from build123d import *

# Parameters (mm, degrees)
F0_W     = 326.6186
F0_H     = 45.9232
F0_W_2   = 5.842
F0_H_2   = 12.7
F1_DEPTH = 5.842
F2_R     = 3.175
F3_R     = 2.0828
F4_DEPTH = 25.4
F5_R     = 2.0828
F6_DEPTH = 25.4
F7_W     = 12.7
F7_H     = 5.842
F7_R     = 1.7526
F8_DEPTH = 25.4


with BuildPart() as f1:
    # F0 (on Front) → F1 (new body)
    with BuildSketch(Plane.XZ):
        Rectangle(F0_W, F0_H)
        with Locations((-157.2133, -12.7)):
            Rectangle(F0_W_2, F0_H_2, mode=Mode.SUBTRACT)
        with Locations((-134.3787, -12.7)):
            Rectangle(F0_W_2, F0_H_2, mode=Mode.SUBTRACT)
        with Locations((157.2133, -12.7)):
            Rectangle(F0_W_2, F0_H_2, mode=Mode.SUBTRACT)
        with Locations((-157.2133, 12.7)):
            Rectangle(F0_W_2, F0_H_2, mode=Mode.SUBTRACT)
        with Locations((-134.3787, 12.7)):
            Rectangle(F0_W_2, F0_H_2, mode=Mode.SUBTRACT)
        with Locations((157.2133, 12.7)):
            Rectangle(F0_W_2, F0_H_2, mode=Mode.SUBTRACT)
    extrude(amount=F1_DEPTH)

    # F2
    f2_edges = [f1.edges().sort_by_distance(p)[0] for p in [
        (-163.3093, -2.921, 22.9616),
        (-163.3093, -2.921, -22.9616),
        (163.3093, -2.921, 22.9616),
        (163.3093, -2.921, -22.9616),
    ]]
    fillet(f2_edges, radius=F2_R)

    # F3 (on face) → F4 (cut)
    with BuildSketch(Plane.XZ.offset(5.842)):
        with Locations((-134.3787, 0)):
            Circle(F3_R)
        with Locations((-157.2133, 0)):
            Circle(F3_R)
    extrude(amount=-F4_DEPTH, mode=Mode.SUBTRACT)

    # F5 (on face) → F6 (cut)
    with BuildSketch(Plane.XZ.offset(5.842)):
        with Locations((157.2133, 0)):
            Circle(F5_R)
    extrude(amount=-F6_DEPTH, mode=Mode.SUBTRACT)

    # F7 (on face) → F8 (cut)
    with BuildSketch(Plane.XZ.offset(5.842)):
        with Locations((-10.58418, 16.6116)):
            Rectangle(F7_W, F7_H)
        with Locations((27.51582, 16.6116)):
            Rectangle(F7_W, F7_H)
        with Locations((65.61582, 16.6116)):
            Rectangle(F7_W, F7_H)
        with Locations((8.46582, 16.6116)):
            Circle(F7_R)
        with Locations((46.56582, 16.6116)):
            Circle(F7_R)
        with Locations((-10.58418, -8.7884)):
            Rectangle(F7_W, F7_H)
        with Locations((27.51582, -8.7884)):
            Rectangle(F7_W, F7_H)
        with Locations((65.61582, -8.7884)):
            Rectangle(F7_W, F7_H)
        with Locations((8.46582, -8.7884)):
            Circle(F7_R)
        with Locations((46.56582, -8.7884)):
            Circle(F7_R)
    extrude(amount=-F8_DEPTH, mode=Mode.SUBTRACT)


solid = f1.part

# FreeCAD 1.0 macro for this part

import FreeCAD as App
import Part
import Sketcher
Q = App.Units.Quantity


def edges_at(feature, points):
    """Names of the edges that pass closest to the given points."""
    edges = feature.Shape.Edges
    near = lambda p: min(range(len(edges)), key=lambda i: edges[i].distToShape(Part.Vertex(*p))[0])
    return sorted({f"Edge{near(p) + 1}" for p in points})

doc = App.newDocument("Part")
body = doc.addObject("PartDesign::Body", "Body")

# Sketch on XZ plane
sketch1 = doc.addObject("Sketcher::SketchObject", "Sketch")
body.addObject(sketch1)
sketch1.AttachmentSupport = (doc.XZ_Plane, [""])
sketch1.MapMode = "FlatFace"
sketch1.addGeometry([
    Part.LineSegment(App.Vector(-163, 23, 0), App.Vector(-163, -23, 0)),  # 0
    Part.LineSegment(App.Vector(-163, -23, 0), App.Vector(163, -23, 0)),  # 1
    Part.LineSegment(App.Vector(163, -23, 0), App.Vector(163, 23, 0)),  # 2
    Part.LineSegment(App.Vector(163, 23, 0), App.Vector(-163, 23, 0)),  # 3
    Part.LineSegment(App.Vector(-154, -19, 0), App.Vector(-160, -19, 0)),  # 4
    Part.LineSegment(App.Vector(-160, -19, 0), App.Vector(-160, -6, 0)),  # 5
    Part.LineSegment(App.Vector(-160, -6, 0), App.Vector(-154, -6, 0)),  # 6
    Part.LineSegment(App.Vector(-154, -6, 0), App.Vector(-154, -19, 0)),  # 7
    Part.LineSegment(App.Vector(-131, -19, 0), App.Vector(-137, -19, 0)),  # 8
    Part.LineSegment(App.Vector(-137, -19, 0), App.Vector(-137, -6, 0)),  # 9
    Part.LineSegment(App.Vector(-137, -6, 0), App.Vector(-131, -6, 0)),  # 10
    Part.LineSegment(App.Vector(-131, -6, 0), App.Vector(-131, -19, 0)),  # 11
    Part.LineSegment(App.Vector(160, -19, 0), App.Vector(154, -19, 0)),  # 12
    Part.LineSegment(App.Vector(154, -19, 0), App.Vector(154, -6, 0)),  # 13
    Part.LineSegment(App.Vector(154, -6, 0), App.Vector(160, -6, 0)),  # 14
    Part.LineSegment(App.Vector(160, -6, 0), App.Vector(160, -19, 0)),  # 15
    Part.LineSegment(App.Vector(-154, 6, 0), App.Vector(-160, 6, 0)),  # 16
    Part.LineSegment(App.Vector(-160, 6, 0), App.Vector(-160, 19, 0)),  # 17
    Part.LineSegment(App.Vector(-160, 19, 0), App.Vector(-154, 19, 0)),  # 18
    Part.LineSegment(App.Vector(-154, 19, 0), App.Vector(-154, 6, 0)),  # 19
    Part.LineSegment(App.Vector(-131, 6, 0), App.Vector(-137, 6, 0)),  # 20
    Part.LineSegment(App.Vector(-137, 6, 0), App.Vector(-137, 19, 0)),  # 21
    Part.LineSegment(App.Vector(-137, 19, 0), App.Vector(-131, 19, 0)),  # 22
    Part.LineSegment(App.Vector(-131, 19, 0), App.Vector(-131, 6, 0)),  # 23
    Part.LineSegment(App.Vector(160, 6, 0), App.Vector(154, 6, 0)),  # 24
    Part.LineSegment(App.Vector(154, 6, 0), App.Vector(154, 19, 0)),  # 25
    Part.LineSegment(App.Vector(154, 19, 0), App.Vector(160, 19, 0)),  # 26
    Part.LineSegment(App.Vector(160, 19, 0), App.Vector(160, 6, 0)),  # 27
], False)
sketch1.addConstraint([
    Sketcher.Constraint("Coincident", 0, 2, 1, 1),
    Sketcher.Constraint("Coincident", 1, 2, 2, 1),
    Sketcher.Constraint("Coincident", 2, 2, 3, 1),
    Sketcher.Constraint("Coincident", 3, 2, 0, 1),
    Sketcher.Constraint("Coincident", 4, 2, 5, 1),
    Sketcher.Constraint("Coincident", 5, 2, 6, 1),
    Sketcher.Constraint("Coincident", 6, 2, 7, 1),
    Sketcher.Constraint("Coincident", 7, 2, 4, 1),
    Sketcher.Constraint("Coincident", 8, 2, 9, 1),
    Sketcher.Constraint("Coincident", 9, 2, 10, 1),
    Sketcher.Constraint("Coincident", 10, 2, 11, 1),
    Sketcher.Constraint("Coincident", 11, 2, 8, 1),
    Sketcher.Constraint("Coincident", 12, 2, 13, 1),
    Sketcher.Constraint("Coincident", 13, 2, 14, 1),
    Sketcher.Constraint("Coincident", 14, 2, 15, 1),
    Sketcher.Constraint("Coincident", 15, 2, 12, 1),
    Sketcher.Constraint("Coincident", 16, 2, 17, 1),
    Sketcher.Constraint("Coincident", 17, 2, 18, 1),
    Sketcher.Constraint("Coincident", 18, 2, 19, 1),
    Sketcher.Constraint("Coincident", 19, 2, 16, 1),
    Sketcher.Constraint("Coincident", 20, 2, 21, 1),
    Sketcher.Constraint("Coincident", 21, 2, 22, 1),
    Sketcher.Constraint("Coincident", 22, 2, 23, 1),
    Sketcher.Constraint("Coincident", 23, 2, 20, 1),
    Sketcher.Constraint("Coincident", 24, 2, 25, 1),
    Sketcher.Constraint("Coincident", 25, 2, 26, 1),
    Sketcher.Constraint("Coincident", 26, 2, 27, 1),
    Sketcher.Constraint("Coincident", 27, 2, 24, 1),
    Sketcher.Constraint("Vertical", 0),
    Sketcher.Constraint("Horizontal", 1),
    Sketcher.Constraint("Vertical", 2),
    Sketcher.Constraint("Horizontal", 3),
    Sketcher.Constraint("Horizontal", 4),
    Sketcher.Constraint("Vertical", 5),
    Sketcher.Constraint("Horizontal", 6),
    Sketcher.Constraint("Vertical", 7),
    Sketcher.Constraint("Horizontal", 8),
    Sketcher.Constraint("Vertical", 9),
    Sketcher.Constraint("Horizontal", 10),
    Sketcher.Constraint("Vertical", 11),
    Sketcher.Constraint("Horizontal", 12),
    Sketcher.Constraint("Vertical", 13),
    Sketcher.Constraint("Horizontal", 14),
    Sketcher.Constraint("Vertical", 15),
    Sketcher.Constraint("Horizontal", 16),
    Sketcher.Constraint("Vertical", 17),
    Sketcher.Constraint("Horizontal", 18),
    Sketcher.Constraint("Vertical", 19),
    Sketcher.Constraint("Horizontal", 20),
    Sketcher.Constraint("Vertical", 21),
    Sketcher.Constraint("Horizontal", 22),
    Sketcher.Constraint("Vertical", 23),
    Sketcher.Constraint("Horizontal", 24),
    Sketcher.Constraint("Vertical", 25),
    Sketcher.Constraint("Horizontal", 26),
    Sketcher.Constraint("Vertical", 27),
    Sketcher.Constraint("Symmetric", 0, 2, 2, 2, -1, 1),
    Sketcher.Constraint("Symmetric", 14, 2, 16, 2, -1, 1),
    Sketcher.Constraint("Symmetric", 12, 2, 18, 2, -1, 1),
    Sketcher.Constraint("Symmetric", 6, 2, 24, 2, -1, 1),
    Sketcher.Constraint("Symmetric", 4, 2, 26, 2, -1, 1),
    Sketcher.Constraint("Symmetric", 7, 2, 12, 2, -2),
    Sketcher.Constraint("Symmetric", 5, 2, 14, 2, -2),
    Sketcher.Constraint("Symmetric", 9, 2, 20, 2, -1),
    Sketcher.Constraint("Symmetric", 11, 2, 22, 2, -1),
    Sketcher.Constraint("Horizontal", 7, 2, 8, 2),
    Sketcher.Constraint("Horizontal", 6, 2, 9, 2),
    Sketcher.Constraint("Equal", 6, 8),
    Sketcher.Constraint("DistanceY", 5, 1, 5, 2, Q("0.5 in")),
    Sketcher.Constraint("DistanceY", 4, 2, 16, 2, Q("1 in")),
    Sketcher.Constraint("DistanceX", 4, 2, 4, 1, Q("0.23 in")),
    Sketcher.Constraint("DistanceX", 1, 1, 1, 2, Q("12.859 in")),
    Sketcher.Constraint("DistanceY", 0, 2, 0, 1, Q("1.808 in")),
    Sketcher.Constraint("DistanceX", 11, 2, 12, 2, Q("11.25 in")),
    Sketcher.Constraint("DistanceX", 0, 2, 4, 2, Q("0.125 in")),
])
pad1 = doc.addObject("PartDesign::Pad", "Pad")
body.addObject(pad1)
pad1.Profile = sketch1
pad1.Length = Q("0.23 in")
doc.recompute()

fillet = doc.addObject("PartDesign::Fillet", "Fillet")
body.addObject(fillet)
fillet.Base = (pad1, edges_at(pad1, [
    (-163.309, -2.921, 22.962),
    (-163.309, -2.921, -22.962),
    (163.309, -2.921, 22.962),
    (163.309, -2.921, -22.962),
]))
fillet.Radius = Q("0.125 in")

# Sketch on XZ plane
sketch2 = doc.addObject("Sketcher::SketchObject", "Sketch001")
body.addObject(sketch2)
sketch2.AttachmentSupport = (doc.XZ_Plane, [""])
sketch2.MapMode = "FlatFace"
sketch2.AttachmentOffset = App.Placement(App.Vector(0, 0, 0.23 * 25.4), App.Rotation())
sketch2.addGeometry([
    Part.Circle(App.Vector(-134.4, 0, 0), App.Vector(0, 0, 1), 2.1),
    Part.Circle(App.Vector(-157.2, 0, 0), App.Vector(0, 0, 1), 2.1),
], False)
sketch2.addConstraint([
    Sketcher.Constraint("Equal", 0, 1),
    Sketcher.Constraint("PointOnObject", 0, 3, -1),
    Sketcher.Constraint("PointOnObject", 1, 3, -1),
    Sketcher.Constraint("Diameter", 0, Q("0.164 in")),
    Sketcher.Constraint("DistanceX", 1, 3, 0, 3, Q("0.899 in")),
    Sketcher.Constraint("DistanceX", 0, 3, -1, 1, Q("5.2905 in")),
])
pocket1 = doc.addObject("PartDesign::Pocket", "Pocket")
body.addObject(pocket1)
pocket1.Profile = sketch2
pocket1.Length = Q("1 in")

# Sketch on XZ plane
sketch3 = doc.addObject("Sketcher::SketchObject", "Sketch002")
body.addObject(sketch3)
sketch3.AttachmentSupport = (doc.XZ_Plane, [""])
sketch3.MapMode = "FlatFace"
sketch3.AttachmentOffset = App.Placement(App.Vector(0, 0, 0.23 * 25.4), App.Rotation())
sketch3.addGeometry(Part.Circle(App.Vector(157.2, 0, 0), App.Vector(0, 0, 1), 2.1), False)
sketch3.addConstraint([
    Sketcher.Constraint("PointOnObject", 0, 3, -1),
    Sketcher.Constraint("Diameter", 0, Q("0.164 in")),
    Sketcher.Constraint("DistanceX", -1, 1, 0, 3, Q("6.1895 in")),
])
pocket2 = doc.addObject("PartDesign::Pocket", "Pocket001")
body.addObject(pocket2)
pocket2.Profile = sketch3
pocket2.Length = Q("1 in")

# Sketch on XZ plane
sketch4 = doc.addObject("Sketcher::SketchObject", "Sketch003")
body.addObject(sketch4)
sketch4.AttachmentSupport = (doc.XZ_Plane, [""])
sketch4.MapMode = "FlatFace"
sketch4.AttachmentOffset = App.Placement(App.Vector(0, 0, 0.23 * 25.4), App.Rotation())
sketch4.addGeometry([
    Part.LineSegment(App.Vector(-16.9, 19.5, 0), App.Vector(-16.9, 13.7, 0)),  # 0
    Part.LineSegment(App.Vector(-16.9, 13.7, 0), App.Vector(-4.2, 13.7, 0)),  # 1
    Part.LineSegment(App.Vector(-4.2, 13.7, 0), App.Vector(-4.2, 19.5, 0)),  # 2
    Part.LineSegment(App.Vector(-4.2, 19.5, 0), App.Vector(-16.9, 19.5, 0)),  # 3
    Part.LineSegment(App.Vector(21.2, 19.5, 0), App.Vector(21.2, 13.7, 0)),  # 4
    Part.LineSegment(App.Vector(21.2, 13.7, 0), App.Vector(33.9, 13.7, 0)),  # 5
    Part.LineSegment(App.Vector(33.9, 13.7, 0), App.Vector(33.9, 19.5, 0)),  # 6
    Part.LineSegment(App.Vector(33.9, 19.5, 0), App.Vector(21.2, 19.5, 0)),  # 7
    Part.LineSegment(App.Vector(59.3, 19.5, 0), App.Vector(59.3, 13.7, 0)),  # 8
    Part.LineSegment(App.Vector(59.3, 13.7, 0), App.Vector(72, 13.7, 0)),  # 9
    Part.LineSegment(App.Vector(72, 13.7, 0), App.Vector(72, 19.5, 0)),  # 10
    Part.LineSegment(App.Vector(72, 19.5, 0), App.Vector(59.3, 19.5, 0)),  # 11
    Part.Circle(App.Vector(8.5, 16.6, 0), App.Vector(0, 0, 1), 1.8),  # 12
    Part.Circle(App.Vector(46.6, 16.6, 0), App.Vector(0, 0, 1), 1.8),  # 13
    Part.LineSegment(App.Vector(-16.9, -5.9, 0), App.Vector(-16.9, -11.7, 0)),  # 14
    Part.LineSegment(App.Vector(-16.9, -11.7, 0), App.Vector(-4.2, -11.7, 0)),  # 15
    Part.LineSegment(App.Vector(-4.2, -11.7, 0), App.Vector(-4.2, -5.9, 0)),  # 16
    Part.LineSegment(App.Vector(-4.2, -5.9, 0), App.Vector(-16.9, -5.9, 0)),  # 17
    Part.LineSegment(App.Vector(21.2, -5.9, 0), App.Vector(21.2, -11.7, 0)),  # 18
    Part.LineSegment(App.Vector(21.2, -11.7, 0), App.Vector(33.9, -11.7, 0)),  # 19
    Part.LineSegment(App.Vector(33.9, -11.7, 0), App.Vector(33.9, -5.9, 0)),  # 20
    Part.LineSegment(App.Vector(33.9, -5.9, 0), App.Vector(21.2, -5.9, 0)),  # 21
    Part.LineSegment(App.Vector(59.3, -5.9, 0), App.Vector(59.3, -11.7, 0)),  # 22
    Part.LineSegment(App.Vector(59.3, -11.7, 0), App.Vector(72, -11.7, 0)),  # 23
    Part.LineSegment(App.Vector(72, -11.7, 0), App.Vector(72, -5.9, 0)),  # 24
    Part.LineSegment(App.Vector(72, -5.9, 0), App.Vector(59.3, -5.9, 0)),  # 25
    Part.Circle(App.Vector(8.5, -8.8, 0), App.Vector(0, 0, 1), 1.8),  # 26
    Part.Circle(App.Vector(46.6, -8.8, 0), App.Vector(0, 0, 1), 1.8),  # 27
], False)
sketch4.addConstraint([
    Sketcher.Constraint("Coincident", 0, 2, 1, 1),
    Sketcher.Constraint("Coincident", 1, 2, 2, 1),
    Sketcher.Constraint("Coincident", 2, 2, 3, 1),
    Sketcher.Constraint("Coincident", 3, 2, 0, 1),
    Sketcher.Constraint("Coincident", 4, 2, 5, 1),
    Sketcher.Constraint("Coincident", 5, 2, 6, 1),
    Sketcher.Constraint("Coincident", 6, 2, 7, 1),
    Sketcher.Constraint("Coincident", 7, 2, 4, 1),
    Sketcher.Constraint("Coincident", 8, 2, 9, 1),
    Sketcher.Constraint("Coincident", 9, 2, 10, 1),
    Sketcher.Constraint("Coincident", 10, 2, 11, 1),
    Sketcher.Constraint("Coincident", 11, 2, 8, 1),
    Sketcher.Constraint("Coincident", 14, 2, 15, 1),
    Sketcher.Constraint("Coincident", 15, 2, 16, 1),
    Sketcher.Constraint("Coincident", 16, 2, 17, 1),
    Sketcher.Constraint("Coincident", 17, 2, 14, 1),
    Sketcher.Constraint("Coincident", 18, 2, 19, 1),
    Sketcher.Constraint("Coincident", 19, 2, 20, 1),
    Sketcher.Constraint("Coincident", 20, 2, 21, 1),
    Sketcher.Constraint("Coincident", 21, 2, 18, 1),
    Sketcher.Constraint("Coincident", 22, 2, 23, 1),
    Sketcher.Constraint("Coincident", 23, 2, 24, 1),
    Sketcher.Constraint("Coincident", 24, 2, 25, 1),
    Sketcher.Constraint("Coincident", 25, 2, 22, 1),
    Sketcher.Constraint("Vertical", 0),
    Sketcher.Constraint("Horizontal", 1),
    Sketcher.Constraint("Vertical", 2),
    Sketcher.Constraint("Horizontal", 3),
    Sketcher.Constraint("Vertical", 4),
    Sketcher.Constraint("Horizontal", 5),
    Sketcher.Constraint("Vertical", 6),
    Sketcher.Constraint("Horizontal", 7),
    Sketcher.Constraint("Vertical", 8),
    Sketcher.Constraint("Horizontal", 9),
    Sketcher.Constraint("Vertical", 10),
    Sketcher.Constraint("Horizontal", 11),
    Sketcher.Constraint("Vertical", 14),
    Sketcher.Constraint("Horizontal", 15),
    Sketcher.Constraint("Vertical", 16),
    Sketcher.Constraint("Horizontal", 17),
    Sketcher.Constraint("Vertical", 18),
    Sketcher.Constraint("Horizontal", 19),
    Sketcher.Constraint("Vertical", 20),
    Sketcher.Constraint("Horizontal", 21),
    Sketcher.Constraint("Vertical", 22),
    Sketcher.Constraint("Horizontal", 23),
    Sketcher.Constraint("Vertical", 24),
    Sketcher.Constraint("Horizontal", 25),
    Sketcher.Constraint("Equal", 12, 13),
    Sketcher.Constraint("Equal", 13, 26),
    Sketcher.Constraint("Equal", 26, 27),
    Sketcher.Constraint("Horizontal", 12, 3, 13, 3),
    Sketcher.Constraint("Horizontal", 26, 3, 27, 3),
    Sketcher.Constraint("Horizontal", 1, 2, 4, 2),
    Sketcher.Constraint("Horizontal", 3, 2, 6, 2),
    Sketcher.Constraint("Horizontal", 5, 2, 8, 2),
    Sketcher.Constraint("Horizontal", 7, 2, 10, 2),
    Sketcher.Constraint("Horizontal", 15, 2, 18, 2),
    Sketcher.Constraint("Horizontal", 17, 2, 20, 2),
    Sketcher.Constraint("Horizontal", 19, 2, 22, 2),
    Sketcher.Constraint("Horizontal", 21, 2, 24, 2),
    Sketcher.Constraint("Vertical", 12, 3, 26, 3),
    Sketcher.Constraint("Vertical", 13, 3, 27, 3),
    Sketcher.Constraint("Vertical", 3, 2, 14, 2),
    Sketcher.Constraint("Vertical", 2, 2, 15, 2),
    Sketcher.Constraint("Vertical", 7, 2, 18, 2),
    Sketcher.Constraint("Vertical", 6, 2, 19, 2),
    Sketcher.Constraint("Vertical", 11, 2, 22, 2),
    Sketcher.Constraint("Vertical", 10, 2, 23, 2),
    Sketcher.Constraint("Equal", 3, 5),
    Sketcher.Constraint("Equal", 7, 9),
    Sketcher.Constraint("Equal", 10, 14),
    Sketcher.Constraint("Diameter", 12, Q("0.138 in")),
    Sketcher.Constraint("DistanceX", 1, 1, 1, 2, Q("0.5 in")),
    Sketcher.Constraint("DistanceY", 26, 3, 12, 3, Q("1 in")),
    Sketcher.Constraint("DistanceX", 0, 2, 12, 3, Q("1 in")),
    Sketcher.Constraint("DistanceX", 1, 2, 13, 3, Q("2 in")),
    Sketcher.Constraint("DistanceX", 1, 2, 4, 2, Q("1 in")),
    Sketcher.Constraint("DistanceX", 5, 2, 8, 2, Q("1 in")),
    Sketcher.Constraint("DistanceY", 14, 2, 0, 2, Q("1 in")),
    Sketcher.Constraint("DistanceY", 0, 2, 0, 1, Q("0.23 in")),
    Sketcher.Constraint("DistanceY", -1, 1, 12, 3, Q("0.654 in")),
    Sketcher.Constraint("DistanceY", -1, 1, 0, 2, Q("0.539 in")),
    Sketcher.Constraint("DistanceX", -1, 1, 12, 3, Q("0.3333 in")),
])
pocket3 = doc.addObject("PartDesign::Pocket", "Pocket002")
body.addObject(pocket3)
pocket3.Profile = sketch4
pocket3.Length = Q("1 in")

doc.recompute()
